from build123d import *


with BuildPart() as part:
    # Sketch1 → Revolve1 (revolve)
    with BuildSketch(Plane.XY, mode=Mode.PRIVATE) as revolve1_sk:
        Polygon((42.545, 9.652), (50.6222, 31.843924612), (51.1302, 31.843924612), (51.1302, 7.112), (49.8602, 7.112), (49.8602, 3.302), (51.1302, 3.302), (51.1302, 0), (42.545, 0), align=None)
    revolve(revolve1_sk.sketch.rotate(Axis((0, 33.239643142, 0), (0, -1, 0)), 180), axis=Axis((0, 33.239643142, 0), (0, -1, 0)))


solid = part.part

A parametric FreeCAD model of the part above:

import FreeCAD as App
import Part
import Sketcher
Q = App.Units.Quantity

doc = App.newDocument("Part")
body = doc.addObject("PartDesign::Body", "Body")

# Sketch on XY plane
sketch1 = body.newObject("Sketcher::SketchObject", "Sketch")
sketch1.AttachmentSupport = (doc.getObject("XY_Plane"), [""])
sketch1.MapMode = "FlatFace"
sketch1.addGeometry(Part.LineSegment(App.Vector(50.6, 31.8, 0), App.Vector(42.5, 9.7, 0)), False)
sketch1.addGeometry(Part.LineSegment(App.Vector(42.5, 9.7, 0), App.Vector(42.5, 0, 0)), False)
sketch1.addGeometry(Part.LineSegment(App.Vector(42.5, 0, 0), App.Vector(51.1, 0, 0)), False)
sketch1.addGeometry(Part.LineSegment(App.Vector(51.1, 0, 0), App.Vector(51.1, 3.3, 0)), False)
sketch1.addGeometry(Part.LineSegment(App.Vector(51.1, 3.3, 0), App.Vector(49.9, 3.3, 0)), False)
sketch1.addGeometry(Part.LineSegment(App.Vector(49.9, 3.3, 0), App.Vector(49.9, 7.1, 0)), False)
sketch1.addGeometry(Part.LineSegment(App.Vector(49.9, 7.1, 0), App.Vector(51.1, 7.1, 0)), False)
sketch1.addGeometry(Part.LineSegment(App.Vector(51.1, 7.1, 0), App.Vector(51.1, 31.8, 0)), False)
sketch1.addGeometry(Part.LineSegment(App.Vector(51.1, 31.8, 0), App.Vector(50.6, 31.8, 0)), False)
sketch1.addConstraint(Sketcher.Constraint("Coincident", 0, 2, 1, 1))
sketch1.addConstraint(Sketcher.Constraint("Coincident", 1, 2, 2, 1))
sketch1.addConstraint(Sketcher.Constraint("Coincident", 2, 2, 3, 1))
sketch1.addConstraint(Sketcher.Constraint("Coincident", 3, 2, 4, 1))
sketch1.addConstraint(Sketcher.Constraint("Coincident", 4, 2, 5, 1))
sketch1.addConstraint(Sketcher.Constraint("Coincident", 5, 2, 6, 1))
sketch1.addConstraint(Sketcher.Constraint("Coincident", 6, 2, 7, 1))
sketch1.addConstraint(Sketcher.Constraint("Coincident", 7, 2, 8, 1))
sketch1.addConstraint(Sketcher.Constraint("Coincident", 8, 2, 0, 1))
sketch1.addConstraint(Sketcher.Constraint("Vertical", 1))
sketch1.addConstraint(Sketcher.Constraint("Horizontal", 2))
sketch1.addConstraint(Sketcher.Constraint("Vertical", 3))
sketch1.addConstraint(Sketcher.Constraint("Horizontal", 4))
sketch1.addConstraint(Sketcher.Constraint("Vertical", 5))
sketch1.addConstraint(Sketcher.Constraint("Horizontal", 6))
sketch1.addConstraint(Sketcher.Constraint("Vertical", 7))
sketch1.addConstraint(Sketcher.Constraint("Horizontal", 8))
sketch1.addConstraint(Sketcher.Constraint("PointOnObject", 1, 2, -1))
sketch1.addConstraint(Sketcher.Constraint("Vertical", 3, 2, 6, 2))
sketch1.addConstraint(Sketcher.Constraint("Angle", 0, Q("-110 deg")))
sketch1.addConstraint(Sketcher.Constraint("DistanceX", 4, 2, 4, 1, Q("0.05 in")))
sketch1.addConstraint(Sketcher.Constraint("DistanceX", 8, 2, 8, 1, Q("0.02 in")))
sketch1.addConstraint(Sketcher.Constraint("DistanceY", 1, 2, 1, 1, Q("0.38 in")))
sketch1.addConstraint(Sketcher.Constraint("DistanceY", 3, 1, 3, 2, Q("0.13 in")))
sketch1.addConstraint(Sketcher.Constraint("DistanceY", 5, 1, 5, 2, Q("0.15 in")))
sketch1.addConstraint(Sketcher.Constraint("DistanceX", 2, 1, 2, 2, Q("0.338 in")))
sketch1.addConstraint(Sketcher.Constraint("DistanceX", -1, 1, 0, 2, Q("1.675 in")))
revolution = body.newObject("PartDesign::Revolution", "Revolution")
revolution.Profile = sketch1
revolution.ReferenceAxis = (sketch1, ["V_Axis"])
revolution.Angle = 360

doc.recompute()
